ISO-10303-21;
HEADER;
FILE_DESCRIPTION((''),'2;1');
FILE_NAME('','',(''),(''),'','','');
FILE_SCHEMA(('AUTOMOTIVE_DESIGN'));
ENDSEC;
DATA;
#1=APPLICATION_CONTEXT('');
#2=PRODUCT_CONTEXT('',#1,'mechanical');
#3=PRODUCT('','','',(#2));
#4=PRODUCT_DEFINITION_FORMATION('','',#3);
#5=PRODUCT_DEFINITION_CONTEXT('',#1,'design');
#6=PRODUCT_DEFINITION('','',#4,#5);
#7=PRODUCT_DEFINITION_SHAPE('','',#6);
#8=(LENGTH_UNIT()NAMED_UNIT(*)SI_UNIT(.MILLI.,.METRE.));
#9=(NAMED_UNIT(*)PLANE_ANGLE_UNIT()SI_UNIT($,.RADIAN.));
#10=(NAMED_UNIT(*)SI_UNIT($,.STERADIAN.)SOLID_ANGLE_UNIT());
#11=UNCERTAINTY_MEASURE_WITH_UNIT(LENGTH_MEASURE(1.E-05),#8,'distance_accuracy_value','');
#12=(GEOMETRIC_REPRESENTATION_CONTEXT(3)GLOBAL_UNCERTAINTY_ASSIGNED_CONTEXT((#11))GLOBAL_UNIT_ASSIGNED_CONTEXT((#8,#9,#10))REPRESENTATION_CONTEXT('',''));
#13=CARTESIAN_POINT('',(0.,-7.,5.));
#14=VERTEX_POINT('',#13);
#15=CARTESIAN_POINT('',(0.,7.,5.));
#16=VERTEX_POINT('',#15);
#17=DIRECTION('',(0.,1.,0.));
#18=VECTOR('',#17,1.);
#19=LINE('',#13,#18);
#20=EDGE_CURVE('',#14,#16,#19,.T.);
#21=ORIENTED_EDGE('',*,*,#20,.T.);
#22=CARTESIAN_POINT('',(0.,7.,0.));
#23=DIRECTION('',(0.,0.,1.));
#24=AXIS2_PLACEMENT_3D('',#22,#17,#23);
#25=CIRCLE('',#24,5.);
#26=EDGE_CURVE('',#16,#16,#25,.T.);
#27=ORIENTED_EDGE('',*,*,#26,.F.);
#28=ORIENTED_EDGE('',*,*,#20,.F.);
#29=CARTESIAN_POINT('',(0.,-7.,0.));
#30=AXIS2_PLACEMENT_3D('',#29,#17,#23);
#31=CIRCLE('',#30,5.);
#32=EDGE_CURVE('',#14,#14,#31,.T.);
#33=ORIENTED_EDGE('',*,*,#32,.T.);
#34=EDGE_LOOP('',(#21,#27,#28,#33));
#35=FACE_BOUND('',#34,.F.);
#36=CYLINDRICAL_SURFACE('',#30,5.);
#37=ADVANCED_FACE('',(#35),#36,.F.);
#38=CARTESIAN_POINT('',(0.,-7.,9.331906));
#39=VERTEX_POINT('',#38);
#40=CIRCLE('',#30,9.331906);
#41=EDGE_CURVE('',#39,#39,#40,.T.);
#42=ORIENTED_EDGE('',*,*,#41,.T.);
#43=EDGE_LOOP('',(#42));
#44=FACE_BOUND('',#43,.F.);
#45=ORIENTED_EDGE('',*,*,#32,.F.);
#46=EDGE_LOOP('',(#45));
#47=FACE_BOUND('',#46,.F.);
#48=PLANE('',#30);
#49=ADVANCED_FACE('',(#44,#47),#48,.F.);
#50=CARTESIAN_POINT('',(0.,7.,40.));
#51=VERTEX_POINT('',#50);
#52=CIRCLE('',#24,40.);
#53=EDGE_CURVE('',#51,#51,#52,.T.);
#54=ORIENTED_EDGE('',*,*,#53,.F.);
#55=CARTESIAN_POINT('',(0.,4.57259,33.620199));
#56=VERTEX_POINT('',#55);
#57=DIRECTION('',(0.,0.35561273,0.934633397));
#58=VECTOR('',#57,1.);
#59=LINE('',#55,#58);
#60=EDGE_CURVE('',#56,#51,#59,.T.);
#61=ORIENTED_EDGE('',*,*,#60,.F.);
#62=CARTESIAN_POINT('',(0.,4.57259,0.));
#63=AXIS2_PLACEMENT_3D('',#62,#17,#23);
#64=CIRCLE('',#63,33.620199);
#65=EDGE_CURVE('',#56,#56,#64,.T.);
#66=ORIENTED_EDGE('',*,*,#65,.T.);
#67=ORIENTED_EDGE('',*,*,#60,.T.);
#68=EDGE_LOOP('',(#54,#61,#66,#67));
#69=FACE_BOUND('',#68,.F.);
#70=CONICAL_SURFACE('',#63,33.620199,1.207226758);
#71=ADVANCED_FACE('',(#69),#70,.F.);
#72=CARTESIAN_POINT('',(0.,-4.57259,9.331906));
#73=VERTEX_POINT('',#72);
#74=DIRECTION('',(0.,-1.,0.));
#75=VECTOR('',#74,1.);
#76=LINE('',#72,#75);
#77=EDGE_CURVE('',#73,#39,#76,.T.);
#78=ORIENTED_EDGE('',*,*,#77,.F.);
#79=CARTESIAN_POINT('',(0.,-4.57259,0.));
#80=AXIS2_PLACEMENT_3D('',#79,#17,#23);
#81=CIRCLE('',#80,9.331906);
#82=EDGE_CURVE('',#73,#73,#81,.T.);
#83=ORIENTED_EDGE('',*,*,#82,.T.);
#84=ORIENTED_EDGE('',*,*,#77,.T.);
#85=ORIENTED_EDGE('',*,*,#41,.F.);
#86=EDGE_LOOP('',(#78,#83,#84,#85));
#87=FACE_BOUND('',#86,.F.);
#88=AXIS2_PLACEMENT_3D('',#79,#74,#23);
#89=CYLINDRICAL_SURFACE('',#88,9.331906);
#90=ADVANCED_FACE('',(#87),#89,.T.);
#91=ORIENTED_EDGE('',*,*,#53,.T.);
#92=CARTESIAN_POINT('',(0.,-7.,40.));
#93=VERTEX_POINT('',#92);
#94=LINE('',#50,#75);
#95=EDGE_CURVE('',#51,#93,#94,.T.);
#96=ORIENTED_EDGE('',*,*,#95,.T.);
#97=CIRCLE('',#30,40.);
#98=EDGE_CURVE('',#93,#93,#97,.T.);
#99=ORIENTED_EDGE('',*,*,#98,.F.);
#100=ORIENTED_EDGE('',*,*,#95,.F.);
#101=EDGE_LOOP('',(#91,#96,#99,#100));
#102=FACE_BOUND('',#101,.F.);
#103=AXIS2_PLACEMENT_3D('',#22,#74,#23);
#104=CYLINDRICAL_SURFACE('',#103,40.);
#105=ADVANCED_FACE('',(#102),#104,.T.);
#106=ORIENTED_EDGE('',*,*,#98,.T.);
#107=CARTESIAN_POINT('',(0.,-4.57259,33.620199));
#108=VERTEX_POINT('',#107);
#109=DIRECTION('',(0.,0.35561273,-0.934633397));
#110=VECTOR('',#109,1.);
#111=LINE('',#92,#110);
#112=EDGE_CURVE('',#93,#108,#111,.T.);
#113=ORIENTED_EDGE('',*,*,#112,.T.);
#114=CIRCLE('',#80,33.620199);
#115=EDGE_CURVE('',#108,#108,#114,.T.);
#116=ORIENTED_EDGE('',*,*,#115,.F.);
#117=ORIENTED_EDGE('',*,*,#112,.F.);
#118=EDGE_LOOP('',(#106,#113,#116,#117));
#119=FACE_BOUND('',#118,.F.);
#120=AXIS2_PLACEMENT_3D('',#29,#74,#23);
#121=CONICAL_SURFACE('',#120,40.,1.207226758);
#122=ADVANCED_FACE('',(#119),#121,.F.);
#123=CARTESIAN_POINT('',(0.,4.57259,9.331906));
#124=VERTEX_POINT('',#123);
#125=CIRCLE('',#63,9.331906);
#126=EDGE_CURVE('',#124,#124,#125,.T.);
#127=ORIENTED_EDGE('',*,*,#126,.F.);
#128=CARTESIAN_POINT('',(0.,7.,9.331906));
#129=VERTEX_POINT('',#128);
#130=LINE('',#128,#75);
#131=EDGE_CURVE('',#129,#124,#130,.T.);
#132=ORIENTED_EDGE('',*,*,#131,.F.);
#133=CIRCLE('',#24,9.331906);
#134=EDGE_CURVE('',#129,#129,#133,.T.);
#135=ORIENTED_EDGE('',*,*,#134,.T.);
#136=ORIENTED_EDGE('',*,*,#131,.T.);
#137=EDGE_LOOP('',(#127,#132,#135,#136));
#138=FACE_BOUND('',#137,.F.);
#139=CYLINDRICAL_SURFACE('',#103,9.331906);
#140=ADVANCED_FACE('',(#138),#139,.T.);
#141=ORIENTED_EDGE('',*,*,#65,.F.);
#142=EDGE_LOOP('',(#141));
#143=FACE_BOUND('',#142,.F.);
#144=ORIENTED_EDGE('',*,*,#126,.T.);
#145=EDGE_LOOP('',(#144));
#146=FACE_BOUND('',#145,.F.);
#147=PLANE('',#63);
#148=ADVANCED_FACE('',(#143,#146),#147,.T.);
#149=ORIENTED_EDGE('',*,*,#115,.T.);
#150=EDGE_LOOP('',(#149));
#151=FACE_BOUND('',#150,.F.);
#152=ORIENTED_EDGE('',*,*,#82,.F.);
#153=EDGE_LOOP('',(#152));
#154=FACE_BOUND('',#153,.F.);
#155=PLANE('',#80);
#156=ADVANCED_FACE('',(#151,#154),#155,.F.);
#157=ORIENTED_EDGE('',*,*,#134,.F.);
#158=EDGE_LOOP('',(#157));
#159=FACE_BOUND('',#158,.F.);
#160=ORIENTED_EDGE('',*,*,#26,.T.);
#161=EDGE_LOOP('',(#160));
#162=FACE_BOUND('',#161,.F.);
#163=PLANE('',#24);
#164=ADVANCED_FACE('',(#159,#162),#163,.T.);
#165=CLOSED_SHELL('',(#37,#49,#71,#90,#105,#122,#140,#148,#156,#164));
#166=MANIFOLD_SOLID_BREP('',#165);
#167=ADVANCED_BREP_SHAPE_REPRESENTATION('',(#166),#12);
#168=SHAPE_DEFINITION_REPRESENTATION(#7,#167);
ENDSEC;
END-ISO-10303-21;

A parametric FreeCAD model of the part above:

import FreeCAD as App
import Part
import Sketcher

V = App.Vector
Q = App.Units.Quantity

doc = App.newDocument("Part")
body = doc.addObject("PartDesign::Body", "Body")

sketch1 = body.newObject("Sketcher::SketchObject", "Sketch")
sketch1.AttachmentSupport = (doc.getObject("YZ_Plane"), [""])
sketch1.MapMode = "FlatFace"
sketch1.addGeometry(Part.LineSegment(V(7, 40, 0), V(-7, 40, 0)), False)
sketch1.addGeometry(Part.LineSegment(V(-7, 40, 0), V(-4.6, 33.6, 0)), False)
sketch1.addGeometry(Part.LineSegment(V(-4.6, 33.6, 0), V(-4.6, 9.3, 0)), False)
sketch1.addGeometry(Part.LineSegment(V(-4.6, 9.3, 0), V(-7, 9.3, 0)), False)
sketch1.addGeometry(Part.LineSegment(V(-7, 9.3, 0), V(-7, 5, 0)), False)
sketch1.addGeometry(Part.LineSegment(V(-7, 5, 0), V(7, 5, 0)), False)
sketch1.addGeometry(Part.LineSegment(V(7, 5, 0), V(7, 9.3, 0)), False)
sketch1.addGeometry(Part.LineSegment(V(7, 9.3, 0), V(4.6, 9.3, 0)), False)
sketch1.addGeometry(Part.LineSegment(V(4.6, 9.3, 0), V(4.6, 33.6, 0)), False)
sketch1.addGeometry(Part.LineSegment(V(4.6, 33.6, 0), V(7, 40, 0)), False)
sketch1.addConstraint(Sketcher.Constraint("Coincident", 0, 2, 1, 1))
sketch1.addConstraint(Sketcher.Constraint("Coincident", 1, 2, 2, 1))
sketch1.addConstraint(Sketcher.Constraint("Coincident", 2, 2, 3, 1))
sketch1.addConstraint(Sketcher.Constraint("Coincident", 3, 2, 4, 1))
sketch1.addConstraint(Sketcher.Constraint("Coincident", 4, 2, 5, 1))
sketch1.addConstraint(Sketcher.Constraint("Coincident", 5, 2, 6, 1))
sketch1.addConstraint(Sketcher.Constraint("Coincident", 6, 2, 7, 1))
sketch1.addConstraint(Sketcher.Constraint("Coincident", 7, 2, 8, 1))
sketch1.addConstraint(Sketcher.Constraint("Coincident", 8, 2, 9, 1))
sketch1.addConstraint(Sketcher.Constraint("Coincident", 9, 2, 0, 1))
sketch1.addConstraint(Sketcher.Constraint("Horizontal", 0))
sketch1.addConstraint(Sketcher.Constraint("Vertical", 2))
sketch1.addConstraint(Sketcher.Constraint("Horizontal", 3))
sketch1.addConstraint(Sketcher.Constraint("Vertical", 4))
sketch1.addConstraint(Sketcher.Constraint("Horizontal", 5))
sketch1.addConstraint(Sketcher.Constraint("Vertical", 6))
sketch1.addConstraint(Sketcher.Constraint("Horizontal", 7))
sketch1.addConstraint(Sketcher.Constraint("Vertical", 8))
sketch1.addConstraint(Sketcher.Constraint("Symmetric", 3, 2, 6, 2, -2))
sketch1.addConstraint(Sketcher.Constraint("Symmetric", 1, 2, 8, 2, -2))
sketch1.addConstraint(Sketcher.Constraint("Vertical", 0, 2, 3, 2))
sketch1.addConstraint(Sketcher.Constraint("Vertical", 6, 2, 9, 2))
sketch1.addConstraint(Sketcher.Constraint("DistanceX", 0, 2, 0, 1, Q("14 mm")))
sketch1.addConstraint(Sketcher.Constraint("DistanceY", -1, 1, 0, 2, Q("40 mm")))
sketch1.addConstraint(Sketcher.Constraint("DistanceY", -1, 1, 4, 2, Q("5 mm")))
sketch1.addConstraint(Sketcher.Constraint("DistanceX", 3, 2, 3, 1, Q("2.42741 mm")))
sketch1.addConstraint(Sketcher.Constraint("DistanceY", -1, 1, 1, 2, Q("33.620199 mm")))
sketch1.addConstraint(Sketcher.Constraint("DistanceY", 2, 2, 2, 1, Q("24.288293 mm")))
revolution = body.newObject("PartDesign::Revolution", "Revolution")
revolution.Profile = sketch1
revolution.ReferenceAxis = (sketch1, ["H_Axis"])
revolution.Angle = 360

doc.recompute()
